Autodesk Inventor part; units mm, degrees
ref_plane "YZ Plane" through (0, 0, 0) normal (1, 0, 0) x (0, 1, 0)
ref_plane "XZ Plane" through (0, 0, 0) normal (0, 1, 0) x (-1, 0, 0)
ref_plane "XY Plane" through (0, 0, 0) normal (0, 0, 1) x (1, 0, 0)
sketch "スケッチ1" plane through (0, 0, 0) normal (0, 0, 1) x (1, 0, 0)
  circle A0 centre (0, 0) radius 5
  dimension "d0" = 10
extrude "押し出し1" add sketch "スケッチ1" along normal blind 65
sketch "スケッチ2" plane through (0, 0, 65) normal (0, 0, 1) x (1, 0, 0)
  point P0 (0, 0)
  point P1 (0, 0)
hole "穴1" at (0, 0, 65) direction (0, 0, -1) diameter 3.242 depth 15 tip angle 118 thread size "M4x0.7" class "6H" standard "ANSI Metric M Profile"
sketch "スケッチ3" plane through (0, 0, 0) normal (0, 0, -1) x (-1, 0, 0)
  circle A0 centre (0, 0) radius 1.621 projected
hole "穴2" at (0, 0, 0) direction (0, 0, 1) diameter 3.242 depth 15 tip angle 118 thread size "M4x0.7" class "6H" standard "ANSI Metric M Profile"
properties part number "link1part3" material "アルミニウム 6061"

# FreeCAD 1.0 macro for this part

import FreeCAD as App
import Part
import Sketcher
from FreeCAD import Vector

doc = App.newDocument("Part")
body = doc.addObject("PartDesign::Body", "Body")

# Sketch on XY plane
sketch1 = body.newObject("Sketcher::SketchObject", "Sketch")
sketch1.AttachmentSupport = (doc.getObject("XY_Plane"), [""])
sketch1.MapMode = "FlatFace"
sketch1.addGeometry(Part.Circle(Vector(0, 0, 0), Vector(0, 0, 1), 5), False)
sketch1.addConstraint(Sketcher.Constraint("Coincident", 0, 3, -1, 1))
sketch1.addConstraint(Sketcher.Constraint("Diameter", 0, 10.0))
pad1 = body.newObject("PartDesign::Pad", "Pad")
pad1.Profile = sketch1
pad1.Length = 65

# Sketch on XY plane
sketch2 = body.newObject("Sketcher::SketchObject", "Sketch001")
sketch2.AttachmentSupport = (doc.getObject("XY_Plane"), [""])
sketch2.MapMode = "FlatFace"
sketch2.AttachmentOffset = App.Placement(Vector(0, 0, 65), App.Rotation())
sketch2.addGeometry(Part.Circle(Vector(0, 0, 0), Vector(0, 0, 1), 1.6), False)
sketch2.addConstraint(Sketcher.Constraint("Coincident", 0, 3, -1, 1))
sketch2.addConstraint(Sketcher.Constraint("Diameter", 0, 3.242))
doc.recompute()
hole = body.newObject("PartDesign::Hole", "Hole")
hole.Profile = sketch2
hole.ThreadType = "None"
hole.Diameter = 3.242
hole.DepthType = "Dimension"
hole.Depth = 15
hole.DrillPoint = "Angled"
hole.DrillPointAngle = 118

# Sketch on XY plane
sketch3 = body.newObject("Sketcher::SketchObject", "Sketch002")
sketch3.AttachmentSupport = (doc.getObject("XY_Plane"), [""])
sketch3.MapMode = "FlatFace"
sketch3.addGeometry(Part.Circle(Vector(0, 0, 0), Vector(0, 0, 1), 1.6), False)
sketch3.addConstraint(Sketcher.Constraint("Coincident", 0, 3, -1, 1))
sketch3.addConstraint(Sketcher.Constraint("Diameter", 0, 3.242))
doc.recompute()
hole2 = body.newObject("PartDesign::Hole", "Hole001")
hole2.Profile = sketch3
hole2.ThreadType = "None"
hole2.Diameter = 3.242
hole2.DepthType = "Dimension"
hole2.Depth = 15
hole2.DrillPoint = "Angled"
hole2.DrillPointAngle = 118
hole2.Reversed = True

doc.recompute()
